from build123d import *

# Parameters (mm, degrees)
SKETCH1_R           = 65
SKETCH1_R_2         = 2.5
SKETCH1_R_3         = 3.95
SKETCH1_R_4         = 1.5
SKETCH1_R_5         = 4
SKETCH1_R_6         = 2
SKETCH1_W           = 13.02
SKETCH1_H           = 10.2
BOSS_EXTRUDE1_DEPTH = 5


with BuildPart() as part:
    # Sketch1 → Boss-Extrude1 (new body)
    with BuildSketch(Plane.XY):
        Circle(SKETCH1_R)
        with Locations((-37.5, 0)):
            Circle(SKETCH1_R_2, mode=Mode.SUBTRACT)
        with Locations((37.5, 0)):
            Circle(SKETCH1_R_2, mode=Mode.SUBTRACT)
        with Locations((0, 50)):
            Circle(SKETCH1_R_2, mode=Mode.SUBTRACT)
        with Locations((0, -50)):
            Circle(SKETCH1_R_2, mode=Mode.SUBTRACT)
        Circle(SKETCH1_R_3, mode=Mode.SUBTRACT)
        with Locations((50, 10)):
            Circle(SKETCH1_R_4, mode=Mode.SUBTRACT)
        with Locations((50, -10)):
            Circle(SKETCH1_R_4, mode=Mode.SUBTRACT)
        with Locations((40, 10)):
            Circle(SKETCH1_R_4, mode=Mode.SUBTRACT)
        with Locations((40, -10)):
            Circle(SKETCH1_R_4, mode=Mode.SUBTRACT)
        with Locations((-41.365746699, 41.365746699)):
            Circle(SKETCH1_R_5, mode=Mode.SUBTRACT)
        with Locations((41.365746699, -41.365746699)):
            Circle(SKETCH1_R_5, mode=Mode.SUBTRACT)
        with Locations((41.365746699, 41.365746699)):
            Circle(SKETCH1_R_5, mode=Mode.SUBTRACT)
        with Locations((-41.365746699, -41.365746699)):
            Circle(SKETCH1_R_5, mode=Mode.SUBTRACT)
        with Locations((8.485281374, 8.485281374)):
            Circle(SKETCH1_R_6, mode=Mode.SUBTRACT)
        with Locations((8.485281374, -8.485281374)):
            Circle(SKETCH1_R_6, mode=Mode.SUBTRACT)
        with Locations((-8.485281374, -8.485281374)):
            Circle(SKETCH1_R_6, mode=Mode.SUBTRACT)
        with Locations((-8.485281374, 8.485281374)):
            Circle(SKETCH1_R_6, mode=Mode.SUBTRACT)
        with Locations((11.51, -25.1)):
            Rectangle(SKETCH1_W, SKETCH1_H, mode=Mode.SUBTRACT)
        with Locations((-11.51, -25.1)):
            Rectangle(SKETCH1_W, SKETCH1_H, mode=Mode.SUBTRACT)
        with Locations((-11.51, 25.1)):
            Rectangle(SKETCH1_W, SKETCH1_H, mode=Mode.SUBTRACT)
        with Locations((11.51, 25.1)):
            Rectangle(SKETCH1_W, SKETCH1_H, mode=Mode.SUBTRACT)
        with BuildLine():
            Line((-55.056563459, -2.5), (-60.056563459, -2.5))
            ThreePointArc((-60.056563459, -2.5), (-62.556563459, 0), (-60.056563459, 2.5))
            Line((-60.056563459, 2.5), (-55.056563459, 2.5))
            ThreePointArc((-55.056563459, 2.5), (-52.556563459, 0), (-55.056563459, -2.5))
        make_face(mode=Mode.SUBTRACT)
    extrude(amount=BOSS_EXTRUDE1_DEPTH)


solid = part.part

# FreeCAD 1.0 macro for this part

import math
import FreeCAD as App
import Part
import Sketcher
from FreeCAD import Vector


def add_polygon(sketch, points):
    """Adds a closed chain of lines whose ends are joined by coincident constraints."""
    first, n = sketch.GeometryCount, len(points)
    for a, b in zip(points, points[1:] + points[:1]):
        sketch.addGeometry(Part.LineSegment(App.Vector(*a, 0), App.Vector(*b, 0)), False)
    for i in range(n):
        sketch.addConstraint(Sketcher.Constraint("Coincident", first + i, 2, first + (i + 1) % n, 1))

doc = App.newDocument("Part")
params = doc.addObject("Spreadsheet::Sheet", "Params")
for row, (alias, value) in enumerate([
    ("sketch1_diameter", "130 mm"),
    ("sketch1_diameter2", "8 mm"),
    ("sketch1_diameter3", "4 mm"),
    ("sketch1_diameter4", "5 mm"),
    ("sketch1_diameter5", "3 mm"),
    ("pad1_length", "5 mm"),
], start=1):
    params.set(f"A{row}", alias)
    params.set(f"B{row}", "=" + value)
    params.setAlias(f"B{row}", alias)

body = doc.addObject("PartDesign::Body", "Body")

sketch1 = body.newObject("Sketcher::SketchObject", "Sketch")
sketch1.AttachmentSupport = (doc.getObject("XY_Plane"), [""])
sketch1.MapMode = "FlatFace"
sketch1.addGeometry(Part.Circle(Vector(0, 0, 0), Vector(0, 0, 1), 65), False)
sketch1.addGeometry(Part.Circle(Vector(-41.4, -41.4, 0), Vector(0, 0, 1), 4), False)
add_polygon(sketch1, [(-5, -30.2), (-18, -30.2), (-18, -20), (-5, -20)])
sketch1.addGeometry(Part.Circle(Vector(-8.5, -8.5, 0), Vector(0, 0, 1), 2), False)
sketch1.addGeometry(Part.Circle(Vector(0, -50, 0), Vector(0, 0, 1), 2.5), False)
sketch1.addGeometry(Part.Circle(Vector(41.4, -41.4, 0), Vector(0, 0, 1), 4), False)
add_polygon(sketch1, [(18, -30.2), (5, -30.2), (5, -20), (18, -20)])
sketch1.addGeometry(Part.Circle(Vector(8.5, -8.5, 0), Vector(0, 0, 1), 2), False)
sketch1.addGeometry(Part.Circle(Vector(40, -10, 0), Vector(0, 0, 1), 1.5), False)
sketch1.addGeometry(Part.Circle(Vector(50, -10, 0), Vector(0, 0, 1), 1.5), False)
sketch1.addGeometry(Part.ArcOfCircle(Part.Circle(Vector(-55.1, 0, 0), Vector(0, 0, 1), 2.5), math.radians(-90), math.radians(90)), False)
sketch1.addGeometry(Part.LineSegment(Vector(-55.1, -2.5, 0), Vector(-60.1, -2.5, 0)), False)
sketch1.addGeometry(Part.ArcOfCircle(Part.Circle(Vector(-60.1, 0, 0), Vector(0, 0, 1), 2.5), math.radians(90), math.radians(270)), False)
sketch1.addGeometry(Part.LineSegment(Vector(-60.1, 2.5, 0), Vector(-55.1, 2.5, 0)), False)
sketch1.addGeometry(Part.Circle(Vector(-37.5, 0, 0), Vector(0, 0, 1), 2.5), False)
sketch1.addGeometry(Part.Circle(Vector(-8.5, 8.5, 0), Vector(0, 0, 1), 2), False)
add_polygon(sketch1, [(-5, 20), (-18, 20), (-18, 30.2), (-5, 30.2)])
sketch1.addGeometry(Part.Circle(Vector(-41.4, 41.4, 0), Vector(0, 0, 1), 4), False)
sketch1.addGeometry(Part.Circle(Vector(0, 0, 0), Vector(0, 0, 1), 4), False)
sketch1.addGeometry(Part.Circle(Vector(8.5, 8.5, 0), Vector(0, 0, 1), 2), False)
add_polygon(sketch1, [(18, 20), (5, 20), (5, 30.2), (18, 30.2)])
sketch1.addGeometry(Part.Circle(Vector(37.5, 0, 0), Vector(0, 0, 1), 2.5), False)
sketch1.addGeometry(Part.Circle(Vector(40, 10, 0), Vector(0, 0, 1), 1.5), False)
sketch1.addGeometry(Part.Circle(Vector(50, 10, 0), Vector(0, 0, 1), 1.5), False)
sketch1.addGeometry(Part.Circle(Vector(0, 50, 0), Vector(0, 0, 1), 2.5), False)
sketch1.addGeometry(Part.Circle(Vector(41.4, 41.4, 0), Vector(0, 0, 1), 4), False)
sketch1.addConstraint([
    Sketcher.Constraint("Tangent", 16, 1, 17, 1),
    Sketcher.Constraint("Tangent", 17, 2, 18, 2),
    Sketcher.Constraint("Tangent", 18, 1, 19, 1),
    Sketcher.Constraint("Tangent", 19, 2, 16, 2),
    Sketcher.Constraint("Horizontal", 2),
    Sketcher.Constraint("Vertical", 3),
    Sketcher.Constraint("Horizontal", 4),
    Sketcher.Constraint("Vertical", 5),
    Sketcher.Constraint("Horizontal", 9),
    Sketcher.Constraint("Vertical", 10),
    Sketcher.Constraint("Horizontal", 11),
    Sketcher.Constraint("Vertical", 12),
    Sketcher.Constraint("Horizontal", 17),
    Sketcher.Constraint("Horizontal", 19),
    Sketcher.Constraint("Horizontal", 22),
    Sketcher.Constraint("Vertical", 23),
    Sketcher.Constraint("Horizontal", 24),
    Sketcher.Constraint("Vertical", 25),
    Sketcher.Constraint("Horizontal", 29),
    Sketcher.Constraint("Vertical", 30),
    Sketcher.Constraint("Horizontal", 31),
    Sketcher.Constraint("Vertical", 32),
    Sketcher.Constraint("Coincident", 0, 3, -1, 1),
    Sketcher.Constraint("Coincident", 27, 3, -1, 1),
    Sketcher.Constraint("Equal", 1, 8),
    Sketcher.Constraint("Equal", 6, 13),
    Sketcher.Constraint("Equal", 14, 15),
    Sketcher.Constraint("Equal", 7, 16),
    Sketcher.Constraint("Equal", 18, 20),
    Sketcher.Constraint("Equal", 13, 21),
    Sketcher.Constraint("Equal", 8, 26),
    Sketcher.Constraint("Equal", 21, 28),
    Sketcher.Constraint("Equal", 20, 33),
    Sketcher.Constraint("Equal", 15, 34),
    Sketcher.Constraint("Equal", 34, 35),
    Sketcher.Constraint("Equal", 33, 36),
    Sketcher.Constraint("Equal", 26, 37),
    Sketcher.Constraint("Symmetric", 13, 3, 21, 3, -1, 1),
    Sketcher.Constraint("Symmetric", 8, 3, 26, 3, -1, 1),
    Sketcher.Constraint("Symmetric", 6, 3, 28, 3, -1, 1),
    Sketcher.Constraint("Symmetric", 20, 3, 33, 3, -1, 1),
    Sketcher.Constraint("Symmetric", 7, 3, 36, 3, -1, 1),
    Sketcher.Constraint("Symmetric", 1, 3, 37, 3, -1, 1),
    Sketcher.Constraint("Symmetric", 11, 2, 22, 2, -1, 1),
    Sketcher.Constraint("Symmetric", 9, 2, 24, 2, -1, 1),
    Sketcher.Constraint("Symmetric", 4, 2, 29, 2, -1, 1),
    Sketcher.Constraint("Symmetric", 2, 2, 31, 2, -1, 1),
    Sketcher.Constraint("Symmetric", 1, 3, 8, 3, -2),
    Sketcher.Constraint("Symmetric", 6, 3, 13, 3, -2),
    Sketcher.Constraint("Symmetric", 5, 2, 9, 2, -2),
    Sketcher.Constraint("Symmetric", 3, 2, 11, 2, -2),
    Sketcher.Constraint("Symmetric", 14, 3, 34, 3, -1),
    Sketcher.Constraint("Symmetric", 15, 3, 35, 3, -1),
    Sketcher.Constraint("PointOnObject", 7, 3, -2),
    Sketcher.Constraint("PointOnObject", 16, 3, -1),
    Sketcher.Constraint("PointOnObject", 20, 3, -1),
    Sketcher.Constraint("Horizontal", 14, 3, 15, 3),
    Sketcher.Constraint("Diameter", 0, 130.0),
    Sketcher.Constraint("Diameter", 1, 8.0),
    Sketcher.Constraint("Diameter", 6, 4.0),
    Sketcher.Constraint("Diameter", 7, 5.0),
    Sketcher.Constraint("Diameter", 14, 3.0),
    Sketcher.Constraint("Diameter", 27, 7.9),
    Sketcher.Constraint("DistanceX", 17, 2, 17, 1, 5.0),
    Sketcher.Constraint("DistanceY", 3, 1, 3, 2, 10.2),
    Sketcher.Constraint("DistanceY", 7, 3, -1, 1, 50.0),
    Sketcher.Constraint("DistanceX", -1, 1, 14, 3, 40.0),
    Sketcher.Constraint("DistanceY", 14, 3, -1, 1, 10.0),
    Sketcher.Constraint("DistanceX", -1, 1, 15, 3, 50.0),
    Sketcher.Constraint("DistanceY", 3, 2, -1, 1, 20.0),
    Sketcher.Constraint("DistanceX", 4, 2, -1, 1, 5.0),
    Sketcher.Constraint("DistanceX", 2, 2, 2, 1, 13.02),
    Sketcher.Constraint("DistanceX", 20, 3, -1, 1, 37.5),
    Sketcher.Constraint("DistanceX", 6, 3, -1, 1, 8.485281),
    Sketcher.Constraint("DistanceY", 6, 3, -1, 1, 8.485281),
    Sketcher.Constraint("DistanceX", 6, 3, 8, 3, 49.851028),
    Sketcher.Constraint("DistanceY", 1, 3, -1, 1, 41.365747),
    Sketcher.Constraint("DistanceX", 16, 3, -1, 1, 55.056563),
])
sketch1.setExpression("Constraints[73]", "Params.sketch1_diameter")
sketch1.setExpression("Constraints[74]", "Params.sketch1_diameter2")
sketch1.setExpression("Constraints[75]", "Params.sketch1_diameter3")
sketch1.setExpression("Constraints[76]", "Params.sketch1_diameter4")
sketch1.setExpression("Constraints[77]", "Params.sketch1_diameter5")
pad1 = body.newObject("PartDesign::Pad", "Pad")
pad1.Profile = sketch1
pad1.setExpression("Length", "Params.pad1_length")

doc.recompute()
